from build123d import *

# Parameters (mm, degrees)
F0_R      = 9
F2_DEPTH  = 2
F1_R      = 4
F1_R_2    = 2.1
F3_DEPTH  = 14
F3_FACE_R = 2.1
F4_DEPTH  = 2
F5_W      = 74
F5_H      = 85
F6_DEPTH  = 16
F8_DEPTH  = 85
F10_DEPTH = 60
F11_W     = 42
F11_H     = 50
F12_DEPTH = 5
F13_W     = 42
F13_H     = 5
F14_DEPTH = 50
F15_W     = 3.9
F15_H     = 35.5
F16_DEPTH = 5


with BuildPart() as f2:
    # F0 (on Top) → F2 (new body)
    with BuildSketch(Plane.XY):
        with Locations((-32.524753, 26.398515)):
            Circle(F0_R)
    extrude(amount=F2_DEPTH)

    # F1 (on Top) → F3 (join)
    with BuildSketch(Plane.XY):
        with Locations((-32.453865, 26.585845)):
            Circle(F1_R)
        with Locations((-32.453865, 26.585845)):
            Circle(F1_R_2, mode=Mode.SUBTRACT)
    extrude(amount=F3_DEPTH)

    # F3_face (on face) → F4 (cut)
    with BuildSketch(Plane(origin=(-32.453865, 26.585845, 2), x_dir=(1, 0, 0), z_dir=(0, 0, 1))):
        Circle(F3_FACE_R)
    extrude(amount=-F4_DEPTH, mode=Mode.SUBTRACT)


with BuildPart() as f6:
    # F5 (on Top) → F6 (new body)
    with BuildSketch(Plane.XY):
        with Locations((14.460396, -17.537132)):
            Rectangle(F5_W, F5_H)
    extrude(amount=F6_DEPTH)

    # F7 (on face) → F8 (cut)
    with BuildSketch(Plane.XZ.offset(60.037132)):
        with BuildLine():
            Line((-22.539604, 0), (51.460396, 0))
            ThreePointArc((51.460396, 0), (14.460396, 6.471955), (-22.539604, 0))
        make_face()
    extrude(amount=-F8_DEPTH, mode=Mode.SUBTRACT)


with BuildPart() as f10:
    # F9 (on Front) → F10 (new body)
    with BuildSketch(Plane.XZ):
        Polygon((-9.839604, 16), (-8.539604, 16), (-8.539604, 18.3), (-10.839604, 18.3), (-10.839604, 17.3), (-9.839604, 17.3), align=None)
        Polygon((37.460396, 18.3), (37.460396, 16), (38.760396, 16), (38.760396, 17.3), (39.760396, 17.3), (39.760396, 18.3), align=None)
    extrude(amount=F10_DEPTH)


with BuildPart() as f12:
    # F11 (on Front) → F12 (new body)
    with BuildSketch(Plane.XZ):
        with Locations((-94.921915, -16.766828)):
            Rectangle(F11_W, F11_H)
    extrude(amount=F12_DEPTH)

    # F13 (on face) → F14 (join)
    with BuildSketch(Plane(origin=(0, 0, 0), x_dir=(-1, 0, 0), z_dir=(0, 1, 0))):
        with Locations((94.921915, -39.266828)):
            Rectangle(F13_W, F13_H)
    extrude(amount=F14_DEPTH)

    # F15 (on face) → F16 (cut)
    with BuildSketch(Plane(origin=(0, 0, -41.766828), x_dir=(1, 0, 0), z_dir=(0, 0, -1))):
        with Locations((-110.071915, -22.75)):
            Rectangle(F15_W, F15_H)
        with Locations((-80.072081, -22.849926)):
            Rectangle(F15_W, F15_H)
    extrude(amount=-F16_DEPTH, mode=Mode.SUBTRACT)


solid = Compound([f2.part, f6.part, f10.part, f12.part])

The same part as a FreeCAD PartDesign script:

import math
import FreeCAD as App
import Part
import Sketcher

doc = App.newDocument("Part")
body = doc.addObject("PartDesign::Body", "Body")

sketch1 = body.newObject("Sketcher::SketchObject", "Sketch")
sketch1.AttachmentSupport = (doc.getObject("XY_Plane"), [""])
sketch1.MapMode = "FlatFace"
sketch1.addGeometry(Part.Circle(App.Vector(-33, 26, 0), App.Vector(0, 0, 1), 9), False)
sketch1.addConstraint(Sketcher.Constraint("Diameter", 0, 18.0))
sketch1.addConstraint(Sketcher.Constraint("DistanceX", 0, 3, -1, 1, 32.524753))
sketch1.addConstraint(Sketcher.Constraint("DistanceY", -1, 1, 0, 3, 26.398515))
pad1 = body.newObject("PartDesign::Pad", "Pad")
pad1.Profile = sketch1
pad1.Length = 2

sketch2 = body.newObject("Sketcher::SketchObject", "Sketch001")
sketch2.AttachmentSupport = (doc.getObject("XY_Plane"), [""])
sketch2.MapMode = "FlatFace"
sketch2.addGeometry(Part.Circle(App.Vector(-32.5, 26.6, 0), App.Vector(0, 0, 1), 4), False)
sketch2.addGeometry(Part.Circle(App.Vector(-32.5, 26.6, 0), App.Vector(0, 0, 1), 2.1), False)
sketch2.addConstraint(Sketcher.Constraint("Coincident", 1, 3, 0, 3))
sketch2.addConstraint(Sketcher.Constraint("Diameter", 0, 8.0))
sketch2.addConstraint(Sketcher.Constraint("Diameter", 1, 4.2))
sketch2.addConstraint(Sketcher.Constraint("DistanceX", 0, 3, -1, 1, 32.453865))
sketch2.addConstraint(Sketcher.Constraint("DistanceY", -1, 1, 0, 3, 26.585845))
pad2 = body.newObject("PartDesign::Pad", "Pad001")
pad2.Profile = sketch2
pad2.Length = 14

sketch3 = body.newObject("Sketcher::SketchObject", "Sketch002")
sketch3.AttachmentSupport = (doc.getObject("XY_Plane"), [""])
sketch3.MapMode = "FlatFace"
sketch3.AttachmentOffset = App.Placement(App.Vector(0, 0, 2), App.Rotation())
sketch3.addGeometry(Part.Circle(App.Vector(-32.5, 26.6, 0), App.Vector(0, 0, 1), 2.1), False)
sketch3.addConstraint(Sketcher.Constraint("Diameter", 0, 4.2))
sketch3.addConstraint(Sketcher.Constraint("DistanceX", 0, 3, -1, 1, 32.453865))
sketch3.addConstraint(Sketcher.Constraint("DistanceY", -1, 1, 0, 3, 26.585845))
pocket1 = body.newObject("PartDesign::Pocket", "Pocket")
pocket1.Profile = sketch3
pocket1.Length = 2
body2 = doc.addObject("PartDesign::Body", "Body001")

sketch4 = body2.newObject("Sketcher::SketchObject", "Sketch003")
sketch4.AttachmentSupport = (doc.getObject("XY_Plane001"), [""])
sketch4.MapMode = "FlatFace"
sketch4.addGeometry(Part.LineSegment(App.Vector(-23, 25, 0), App.Vector(-23, -60, 0)), False)
sketch4.addGeometry(Part.LineSegment(App.Vector(-23, -60, 0), App.Vector(51, -60, 0)), False)
sketch4.addGeometry(Part.LineSegment(App.Vector(51, -60, 0), App.Vector(51, 25, 0)), False)
sketch4.addGeometry(Part.LineSegment(App.Vector(51, 25, 0), App.Vector(-23, 25, 0)), False)
sketch4.addConstraint(Sketcher.Constraint("Coincident", 0, 2, 1, 1))
sketch4.addConstraint(Sketcher.Constraint("Coincident", 1, 2, 2, 1))
sketch4.addConstraint(Sketcher.Constraint("Coincident", 2, 2, 3, 1))
sketch4.addConstraint(Sketcher.Constraint("Coincident", 3, 2, 0, 1))
sketch4.addConstraint(Sketcher.Constraint("Vertical", 0))
sketch4.addConstraint(Sketcher.Constraint("Horizontal", 1))
sketch4.addConstraint(Sketcher.Constraint("Vertical", 2))
sketch4.addConstraint(Sketcher.Constraint("Horizontal", 3))
sketch4.addConstraint(Sketcher.Constraint("DistanceX", 1, 1, 1, 2, 74.0))
sketch4.addConstraint(Sketcher.Constraint("DistanceY", 0, 2, 0, 1, 85.0))
sketch4.addConstraint(Sketcher.Constraint("DistanceY", -1, 1, 2, 2, 24.962868))
sketch4.addConstraint(Sketcher.Constraint("DistanceX", 0, 2, -1, 1, 22.539604))
pad3 = body2.newObject("PartDesign::Pad", "Pad002")
pad3.Profile = sketch4
pad3.Length = 16

sketch5 = body2.newObject("Sketcher::SketchObject", "Sketch004")
sketch5.AttachmentSupport = (doc.getObject("XZ_Plane001"), [""])
sketch5.MapMode = "FlatFace"
sketch5.AttachmentOffset = App.Placement(App.Vector(0, 0, 60.037132), App.Rotation())
sketch5.addGeometry(Part.LineSegment(App.Vector(-23, 0, 0), App.Vector(51, 0, 0)), False)
sketch5.addGeometry(Part.ArcOfCircle(Part.Circle(App.Vector(14, -103, 0), App.Vector(0, 0, 1), 109), math.radians(70), math.radians(110)), False)
sketch5.addConstraint(Sketcher.Constraint("Coincident", 0, 1, 1, 2))
sketch5.addConstraint(Sketcher.Constraint("Coincident", 1, 1, 0, 2))
sketch5.addConstraint(Sketcher.Constraint("Horizontal", 0))
sketch5.addConstraint(Sketcher.Constraint("PointOnObject", 0, 1, -1))
sketch5.addConstraint(Sketcher.Constraint("Radius", 1, 109.000001))
sketch5.addConstraint(Sketcher.Constraint("DistanceX", 0, 1, 0, 2, 74.0))
sketch5.addConstraint(Sketcher.Constraint("DistanceX", -1, 1, 1, 3, 14.460396))
pocket2 = body2.newObject("PartDesign::Pocket", "Pocket001")
pocket2.Profile = sketch5
pocket2.Length = 85
body3 = doc.addObject("PartDesign::Body", "Body002")
body3.AllowCompound = True

sketch6 = body3.newObject("Sketcher::SketchObject", "Sketch005")
sketch6.AttachmentSupport = (doc.getObject("XZ_Plane002"), [""])
sketch6.MapMode = "FlatFace"
sketch6.addGeometry(Part.LineSegment(App.Vector(-9.8, 16, 0), App.Vector(-8.5, 16, 0)), False)
sketch6.addGeometry(Part.LineSegment(App.Vector(-8.5, 16, 0), App.Vector(-8.5, 18.3, 0)), False)
sketch6.addGeometry(Part.LineSegment(App.Vector(-8.5, 18.3, 0), App.Vector(-10.8, 18.3, 0)), False)
sketch6.addGeometry(Part.LineSegment(App.Vector(-10.8, 18.3, 0), App.Vector(-10.8, 17.3, 0)), False)
sketch6.addGeometry(Part.LineSegment(App.Vector(-10.8, 17.3, 0), App.Vector(-9.8, 17.3, 0)), False)
sketch6.addGeometry(Part.LineSegment(App.Vector(-9.8, 17.3, 0), App.Vector(-9.8, 16, 0)), False)
sketch6.addGeometry(Part.LineSegment(App.Vector(37.5, 18.3, 0), App.Vector(37.5, 16, 0)), False)
sketch6.addGeometry(Part.LineSegment(App.Vector(37.5, 16, 0), App.Vector(38.8, 16, 0)), False)
sketch6.addGeometry(Part.LineSegment(App.Vector(38.8, 16, 0), App.Vector(38.8, 17.3, 0)), False)
sketch6.addGeometry(Part.LineSegment(App.Vector(38.8, 17.3, 0), App.Vector(39.8, 17.3, 0)), False)
sketch6.addGeometry(Part.LineSegment(App.Vector(39.8, 17.3, 0), App.Vector(39.8, 18.3, 0)), False)
sketch6.addGeometry(Part.LineSegment(App.Vector(39.8, 18.3, 0), App.Vector(37.5, 18.3, 0)), False)
sketch6.addConstraint(Sketcher.Constraint("Coincident", 0, 2, 1, 1))
sketch6.addConstraint(Sketcher.Constraint("Coincident", 1, 2, 2, 1))
sketch6.addConstraint(Sketcher.Constraint("Coincident", 2, 2, 3, 1))
sketch6.addConstraint(Sketcher.Constraint("Coincident", 3, 2, 4, 1))
sketch6.addConstraint(Sketcher.Constraint("Coincident", 4, 2, 5, 1))
sketch6.addConstraint(Sketcher.Constraint("Coincident", 5, 2, 0, 1))
sketch6.addConstraint(Sketcher.Constraint("Coincident", 6, 2, 7, 1))
sketch6.addConstraint(Sketcher.Constraint("Coincident", 7, 2, 8, 1))
sketch6.addConstraint(Sketcher.Constraint("Coincident", 8, 2, 9, 1))
sketch6.addConstraint(Sketcher.Constraint("Coincident", 9, 2, 10, 1))
sketch6.addConstraint(Sketcher.Constraint("Coincident", 10, 2, 11, 1))
sketch6.addConstraint(Sketcher.Constraint("Coincident", 11, 2, 6, 1))
sketch6.addConstraint(Sketcher.Constraint("Horizontal", 0))
sketch6.addConstraint(Sketcher.Constraint("Vertical", 1))
sketch6.addConstraint(Sketcher.Constraint("Horizontal", 2))
sketch6.addConstraint(Sketcher.Constraint("Vertical", 3))
sketch6.addConstraint(Sketcher.Constraint("Horizontal", 4))
sketch6.addConstraint(Sketcher.Constraint("Vertical", 5))
sketch6.addConstraint(Sketcher.Constraint("Vertical", 6))
sketch6.addConstraint(Sketcher.Constraint("Horizontal", 7))
sketch6.addConstraint(Sketcher.Constraint("Vertical", 8))
sketch6.addConstraint(Sketcher.Constraint("Horizontal", 9))
sketch6.addConstraint(Sketcher.Constraint("Vertical", 10))
sketch6.addConstraint(Sketcher.Constraint("Horizontal", 11))
sketch6.addConstraint(Sketcher.Constraint("Horizontal", 5, 2, 6, 2))
sketch6.addConstraint(Sketcher.Constraint("Horizontal", 4, 2, 8, 2))
sketch6.addConstraint(Sketcher.Constraint("Horizontal", 2, 2, 10, 2))
sketch6.addConstraint(Sketcher.Constraint("Equal", 0, 7))
sketch6.addConstraint(Sketcher.Constraint("Equal", 4, 9))
sketch6.addConstraint(Sketcher.Constraint("Equal", 11, 1))
sketch6.addConstraint(Sketcher.Constraint("Equal", 9, 3))
sketch6.addConstraint(Sketcher.Constraint("DistanceX", 4, 1, 4, 2, 1.0))
sketch6.addConstraint(Sketcher.Constraint("DistanceX", 0, 1, 0, 2, 1.3))
sketch6.addConstraint(Sketcher.Constraint("DistanceY", -1, 1, 0, 2, 16.0))
sketch6.addConstraint(Sketcher.Constraint("DistanceX", 0, 2, 6, 2, 46.0))
sketch6.addConstraint(Sketcher.Constraint("DistanceX", 0, 2, -1, 1, 8.539604))
pad4 = body3.newObject("PartDesign::Pad", "Pad003")
pad4.Profile = sketch6
pad4.Length = 60
body4 = doc.addObject("PartDesign::Body", "Body003")

sketch7 = body4.newObject("Sketcher::SketchObject", "Sketch006")
sketch7.AttachmentSupport = (doc.getObject("XZ_Plane003"), [""])
sketch7.MapMode = "FlatFace"
sketch7.addGeometry(Part.LineSegment(App.Vector(-116, 8, 0), App.Vector(-116, -42, 0)), False)
sketch7.addGeometry(Part.LineSegment(App.Vector(-116, -42, 0), App.Vector(-74, -42, 0)), False)
sketch7.addGeometry(Part.LineSegment(App.Vector(-74, -42, 0), App.Vector(-74, 8, 0)), False)
sketch7.addGeometry(Part.LineSegment(App.Vector(-74, 8, 0), App.Vector(-116, 8, 0)), False)
sketch7.addConstraint(Sketcher.Constraint("Coincident", 0, 2, 1, 1))
sketch7.addConstraint(Sketcher.Constraint("Coincident", 1, 2, 2, 1))
sketch7.addConstraint(Sketcher.Constraint("Coincident", 2, 2, 3, 1))
sketch7.addConstraint(Sketcher.Constraint("Coincident", 3, 2, 0, 1))
sketch7.addConstraint(Sketcher.Constraint("Vertical", 0))
sketch7.addConstraint(Sketcher.Constraint("Horizontal", 1))
sketch7.addConstraint(Sketcher.Constraint("Vertical", 2))
sketch7.addConstraint(Sketcher.Constraint("Horizontal", 3))
sketch7.addConstraint(Sketcher.Constraint("DistanceX", 1, 1, 1, 2, 42.0))
sketch7.addConstraint(Sketcher.Constraint("DistanceY", 0, 2, 0, 1, 50.0))
sketch7.addConstraint(Sketcher.Constraint("DistanceX", 0, 2, -1, 1, 115.921915))
sketch7.addConstraint(Sketcher.Constraint("DistanceY", 0, 2, -1, 1, 41.766828))
pad5 = body4.newObject("PartDesign::Pad", "Pad004")
pad5.Profile = sketch7
pad5.Length = 5

sketch8 = body4.newObject("Sketcher::SketchObject", "Sketch007")
sketch8.AttachmentSupport = (doc.getObject("XZ_Plane003"), [""])
sketch8.MapMode = "FlatFace"
sketch8.addGeometry(Part.LineSegment(App.Vector(-74, -37, 0), App.Vector(-74, -42, 0)), False)
sketch8.addGeometry(Part.LineSegment(App.Vector(-74, -42, 0), App.Vector(-116, -42, 0)), False)
sketch8.addGeometry(Part.LineSegment(App.Vector(-116, -42, 0), App.Vector(-116, -37, 0)), False)
sketch8.addGeometry(Part.LineSegment(App.Vector(-116, -37, 0), App.Vector(-74, -37, 0)), False)
sketch8.addConstraint(Sketcher.Constraint("Coincident", 0, 2, 1, 1))
sketch8.addConstraint(Sketcher.Constraint("Coincident", 1, 2, 2, 1))
sketch8.addConstraint(Sketcher.Constraint("Coincident", 2, 2, 3, 1))
sketch8.addConstraint(Sketcher.Constraint("Coincident", 3, 2, 0, 1))
sketch8.addConstraint(Sketcher.Constraint("Vertical", 0))
sketch8.addConstraint(Sketcher.Constraint("Horizontal", 1))
sketch8.addConstraint(Sketcher.Constraint("Vertical", 2))
sketch8.addConstraint(Sketcher.Constraint("Horizontal", 3))
sketch8.addConstraint(Sketcher.Constraint("DistanceX", 1, 2, 1, 1, 42.0))
sketch8.addConstraint(Sketcher.Constraint("DistanceY", 0, 2, 0, 1, 5.0))
sketch8.addConstraint(Sketcher.Constraint("DistanceX", 0, 2, -1, 1, 73.921915))
sketch8.addConstraint(Sketcher.Constraint("DistanceY", 0, 2, -1, 1, 41.766828))
pad6 = body4.newObject("PartDesign::Pad", "Pad005")
pad6.Profile = sketch8
pad6.Length = 50
pad6.Reversed = True

sketch9 = body4.newObject("Sketcher::SketchObject", "Sketch008")
sketch9.AttachmentSupport = (doc.getObject("XY_Plane003"), [""])
sketch9.MapMode = "FlatFace"
sketch9.AttachmentOffset = App.Placement(App.Vector(0, 0, -41.766828), App.Rotation())
sketch9.addGeometry(Part.LineSegment(App.Vector(-112, 5, 0), App.Vector(-112, 40.5, 0)), False)
sketch9.addGeometry(Part.LineSegment(App.Vector(-112, 40.5, 0), App.Vector(-108.1, 40.5, 0)), False)
sketch9.addGeometry(Part.LineSegment(App.Vector(-108.1, 40.5, 0), App.Vector(-108.1, 5, 0)), False)
sketch9.addGeometry(Part.LineSegment(App.Vector(-108.1, 5, 0), App.Vector(-112, 5, 0)), False)
sketch9.addGeometry(Part.LineSegment(App.Vector(-82, 5.1, 0), App.Vector(-82, 40.6, 0)), False)
sketch9.addGeometry(Part.LineSegment(App.Vector(-82, 40.6, 0), App.Vector(-78.1, 40.6, 0)), False)
sketch9.addGeometry(Part.LineSegment(App.Vector(-78.1, 40.6, 0), App.Vector(-78.1, 5.1, 0)), False)
sketch9.addGeometry(Part.LineSegment(App.Vector(-78.1, 5.1, 0), App.Vector(-82, 5.1, 0)), False)
sketch9.addConstraint(Sketcher.Constraint("Coincident", 0, 2, 1, 1))
sketch9.addConstraint(Sketcher.Constraint("Coincident", 1, 2, 2, 1))
sketch9.addConstraint(Sketcher.Constraint("Coincident", 2, 2, 3, 1))
sketch9.addConstraint(Sketcher.Constraint("Coincident", 3, 2, 0, 1))
sketch9.addConstraint(Sketcher.Constraint("Coincident", 4, 2, 5, 1))
sketch9.addConstraint(Sketcher.Constraint("Coincident", 5, 2, 6, 1))
sketch9.addConstraint(Sketcher.Constraint("Coincident", 6, 2, 7, 1))
sketch9.addConstraint(Sketcher.Constraint("Coincident", 7, 2, 4, 1))
sketch9.addConstraint(Sketcher.Constraint("Vertical", 0))
sketch9.addConstraint(Sketcher.Constraint("Horizontal", 1))
sketch9.addConstraint(Sketcher.Constraint("Vertical", 2))
sketch9.addConstraint(Sketcher.Constraint("Horizontal", 3))
sketch9.addConstraint(Sketcher.Constraint("Vertical", 4))
sketch9.addConstraint(Sketcher.Constraint("Horizontal", 5))
sketch9.addConstraint(Sketcher.Constraint("Vertical", 6))
sketch9.addConstraint(Sketcher.Constraint("Horizontal", 7))
sketch9.addConstraint(Sketcher.Constraint("Equal", 3, 5))
sketch9.addConstraint(Sketcher.Constraint("Equal", 2, 4))
sketch9.addConstraint(Sketcher.Constraint("DistanceX", 1, 1, 1, 2, 3.9))
sketch9.addConstraint(Sketcher.Constraint("DistanceY", 0, 1, 0, 2, 35.5))
sketch9.addConstraint(Sketcher.Constraint("DistanceY", -1, 1, 2, 2, 5.0))
sketch9.addConstraint(Sketcher.Constraint("DistanceX", 4, 2, -1, 1, 82.022081))
sketch9.addConstraint(Sketcher.Constraint("DistanceX", 0, 2, -1, 1, 112.021915))
sketch9.addConstraint(Sketcher.Constraint("DistanceY", -1, 1, 4, 2, 40.599926))
pocket3 = body4.newObject("PartDesign::Pocket", "Pocket002")
pocket3.Profile = sketch9
pocket3.Length = 5
pocket3.Reversed = True

doc.recompute()
